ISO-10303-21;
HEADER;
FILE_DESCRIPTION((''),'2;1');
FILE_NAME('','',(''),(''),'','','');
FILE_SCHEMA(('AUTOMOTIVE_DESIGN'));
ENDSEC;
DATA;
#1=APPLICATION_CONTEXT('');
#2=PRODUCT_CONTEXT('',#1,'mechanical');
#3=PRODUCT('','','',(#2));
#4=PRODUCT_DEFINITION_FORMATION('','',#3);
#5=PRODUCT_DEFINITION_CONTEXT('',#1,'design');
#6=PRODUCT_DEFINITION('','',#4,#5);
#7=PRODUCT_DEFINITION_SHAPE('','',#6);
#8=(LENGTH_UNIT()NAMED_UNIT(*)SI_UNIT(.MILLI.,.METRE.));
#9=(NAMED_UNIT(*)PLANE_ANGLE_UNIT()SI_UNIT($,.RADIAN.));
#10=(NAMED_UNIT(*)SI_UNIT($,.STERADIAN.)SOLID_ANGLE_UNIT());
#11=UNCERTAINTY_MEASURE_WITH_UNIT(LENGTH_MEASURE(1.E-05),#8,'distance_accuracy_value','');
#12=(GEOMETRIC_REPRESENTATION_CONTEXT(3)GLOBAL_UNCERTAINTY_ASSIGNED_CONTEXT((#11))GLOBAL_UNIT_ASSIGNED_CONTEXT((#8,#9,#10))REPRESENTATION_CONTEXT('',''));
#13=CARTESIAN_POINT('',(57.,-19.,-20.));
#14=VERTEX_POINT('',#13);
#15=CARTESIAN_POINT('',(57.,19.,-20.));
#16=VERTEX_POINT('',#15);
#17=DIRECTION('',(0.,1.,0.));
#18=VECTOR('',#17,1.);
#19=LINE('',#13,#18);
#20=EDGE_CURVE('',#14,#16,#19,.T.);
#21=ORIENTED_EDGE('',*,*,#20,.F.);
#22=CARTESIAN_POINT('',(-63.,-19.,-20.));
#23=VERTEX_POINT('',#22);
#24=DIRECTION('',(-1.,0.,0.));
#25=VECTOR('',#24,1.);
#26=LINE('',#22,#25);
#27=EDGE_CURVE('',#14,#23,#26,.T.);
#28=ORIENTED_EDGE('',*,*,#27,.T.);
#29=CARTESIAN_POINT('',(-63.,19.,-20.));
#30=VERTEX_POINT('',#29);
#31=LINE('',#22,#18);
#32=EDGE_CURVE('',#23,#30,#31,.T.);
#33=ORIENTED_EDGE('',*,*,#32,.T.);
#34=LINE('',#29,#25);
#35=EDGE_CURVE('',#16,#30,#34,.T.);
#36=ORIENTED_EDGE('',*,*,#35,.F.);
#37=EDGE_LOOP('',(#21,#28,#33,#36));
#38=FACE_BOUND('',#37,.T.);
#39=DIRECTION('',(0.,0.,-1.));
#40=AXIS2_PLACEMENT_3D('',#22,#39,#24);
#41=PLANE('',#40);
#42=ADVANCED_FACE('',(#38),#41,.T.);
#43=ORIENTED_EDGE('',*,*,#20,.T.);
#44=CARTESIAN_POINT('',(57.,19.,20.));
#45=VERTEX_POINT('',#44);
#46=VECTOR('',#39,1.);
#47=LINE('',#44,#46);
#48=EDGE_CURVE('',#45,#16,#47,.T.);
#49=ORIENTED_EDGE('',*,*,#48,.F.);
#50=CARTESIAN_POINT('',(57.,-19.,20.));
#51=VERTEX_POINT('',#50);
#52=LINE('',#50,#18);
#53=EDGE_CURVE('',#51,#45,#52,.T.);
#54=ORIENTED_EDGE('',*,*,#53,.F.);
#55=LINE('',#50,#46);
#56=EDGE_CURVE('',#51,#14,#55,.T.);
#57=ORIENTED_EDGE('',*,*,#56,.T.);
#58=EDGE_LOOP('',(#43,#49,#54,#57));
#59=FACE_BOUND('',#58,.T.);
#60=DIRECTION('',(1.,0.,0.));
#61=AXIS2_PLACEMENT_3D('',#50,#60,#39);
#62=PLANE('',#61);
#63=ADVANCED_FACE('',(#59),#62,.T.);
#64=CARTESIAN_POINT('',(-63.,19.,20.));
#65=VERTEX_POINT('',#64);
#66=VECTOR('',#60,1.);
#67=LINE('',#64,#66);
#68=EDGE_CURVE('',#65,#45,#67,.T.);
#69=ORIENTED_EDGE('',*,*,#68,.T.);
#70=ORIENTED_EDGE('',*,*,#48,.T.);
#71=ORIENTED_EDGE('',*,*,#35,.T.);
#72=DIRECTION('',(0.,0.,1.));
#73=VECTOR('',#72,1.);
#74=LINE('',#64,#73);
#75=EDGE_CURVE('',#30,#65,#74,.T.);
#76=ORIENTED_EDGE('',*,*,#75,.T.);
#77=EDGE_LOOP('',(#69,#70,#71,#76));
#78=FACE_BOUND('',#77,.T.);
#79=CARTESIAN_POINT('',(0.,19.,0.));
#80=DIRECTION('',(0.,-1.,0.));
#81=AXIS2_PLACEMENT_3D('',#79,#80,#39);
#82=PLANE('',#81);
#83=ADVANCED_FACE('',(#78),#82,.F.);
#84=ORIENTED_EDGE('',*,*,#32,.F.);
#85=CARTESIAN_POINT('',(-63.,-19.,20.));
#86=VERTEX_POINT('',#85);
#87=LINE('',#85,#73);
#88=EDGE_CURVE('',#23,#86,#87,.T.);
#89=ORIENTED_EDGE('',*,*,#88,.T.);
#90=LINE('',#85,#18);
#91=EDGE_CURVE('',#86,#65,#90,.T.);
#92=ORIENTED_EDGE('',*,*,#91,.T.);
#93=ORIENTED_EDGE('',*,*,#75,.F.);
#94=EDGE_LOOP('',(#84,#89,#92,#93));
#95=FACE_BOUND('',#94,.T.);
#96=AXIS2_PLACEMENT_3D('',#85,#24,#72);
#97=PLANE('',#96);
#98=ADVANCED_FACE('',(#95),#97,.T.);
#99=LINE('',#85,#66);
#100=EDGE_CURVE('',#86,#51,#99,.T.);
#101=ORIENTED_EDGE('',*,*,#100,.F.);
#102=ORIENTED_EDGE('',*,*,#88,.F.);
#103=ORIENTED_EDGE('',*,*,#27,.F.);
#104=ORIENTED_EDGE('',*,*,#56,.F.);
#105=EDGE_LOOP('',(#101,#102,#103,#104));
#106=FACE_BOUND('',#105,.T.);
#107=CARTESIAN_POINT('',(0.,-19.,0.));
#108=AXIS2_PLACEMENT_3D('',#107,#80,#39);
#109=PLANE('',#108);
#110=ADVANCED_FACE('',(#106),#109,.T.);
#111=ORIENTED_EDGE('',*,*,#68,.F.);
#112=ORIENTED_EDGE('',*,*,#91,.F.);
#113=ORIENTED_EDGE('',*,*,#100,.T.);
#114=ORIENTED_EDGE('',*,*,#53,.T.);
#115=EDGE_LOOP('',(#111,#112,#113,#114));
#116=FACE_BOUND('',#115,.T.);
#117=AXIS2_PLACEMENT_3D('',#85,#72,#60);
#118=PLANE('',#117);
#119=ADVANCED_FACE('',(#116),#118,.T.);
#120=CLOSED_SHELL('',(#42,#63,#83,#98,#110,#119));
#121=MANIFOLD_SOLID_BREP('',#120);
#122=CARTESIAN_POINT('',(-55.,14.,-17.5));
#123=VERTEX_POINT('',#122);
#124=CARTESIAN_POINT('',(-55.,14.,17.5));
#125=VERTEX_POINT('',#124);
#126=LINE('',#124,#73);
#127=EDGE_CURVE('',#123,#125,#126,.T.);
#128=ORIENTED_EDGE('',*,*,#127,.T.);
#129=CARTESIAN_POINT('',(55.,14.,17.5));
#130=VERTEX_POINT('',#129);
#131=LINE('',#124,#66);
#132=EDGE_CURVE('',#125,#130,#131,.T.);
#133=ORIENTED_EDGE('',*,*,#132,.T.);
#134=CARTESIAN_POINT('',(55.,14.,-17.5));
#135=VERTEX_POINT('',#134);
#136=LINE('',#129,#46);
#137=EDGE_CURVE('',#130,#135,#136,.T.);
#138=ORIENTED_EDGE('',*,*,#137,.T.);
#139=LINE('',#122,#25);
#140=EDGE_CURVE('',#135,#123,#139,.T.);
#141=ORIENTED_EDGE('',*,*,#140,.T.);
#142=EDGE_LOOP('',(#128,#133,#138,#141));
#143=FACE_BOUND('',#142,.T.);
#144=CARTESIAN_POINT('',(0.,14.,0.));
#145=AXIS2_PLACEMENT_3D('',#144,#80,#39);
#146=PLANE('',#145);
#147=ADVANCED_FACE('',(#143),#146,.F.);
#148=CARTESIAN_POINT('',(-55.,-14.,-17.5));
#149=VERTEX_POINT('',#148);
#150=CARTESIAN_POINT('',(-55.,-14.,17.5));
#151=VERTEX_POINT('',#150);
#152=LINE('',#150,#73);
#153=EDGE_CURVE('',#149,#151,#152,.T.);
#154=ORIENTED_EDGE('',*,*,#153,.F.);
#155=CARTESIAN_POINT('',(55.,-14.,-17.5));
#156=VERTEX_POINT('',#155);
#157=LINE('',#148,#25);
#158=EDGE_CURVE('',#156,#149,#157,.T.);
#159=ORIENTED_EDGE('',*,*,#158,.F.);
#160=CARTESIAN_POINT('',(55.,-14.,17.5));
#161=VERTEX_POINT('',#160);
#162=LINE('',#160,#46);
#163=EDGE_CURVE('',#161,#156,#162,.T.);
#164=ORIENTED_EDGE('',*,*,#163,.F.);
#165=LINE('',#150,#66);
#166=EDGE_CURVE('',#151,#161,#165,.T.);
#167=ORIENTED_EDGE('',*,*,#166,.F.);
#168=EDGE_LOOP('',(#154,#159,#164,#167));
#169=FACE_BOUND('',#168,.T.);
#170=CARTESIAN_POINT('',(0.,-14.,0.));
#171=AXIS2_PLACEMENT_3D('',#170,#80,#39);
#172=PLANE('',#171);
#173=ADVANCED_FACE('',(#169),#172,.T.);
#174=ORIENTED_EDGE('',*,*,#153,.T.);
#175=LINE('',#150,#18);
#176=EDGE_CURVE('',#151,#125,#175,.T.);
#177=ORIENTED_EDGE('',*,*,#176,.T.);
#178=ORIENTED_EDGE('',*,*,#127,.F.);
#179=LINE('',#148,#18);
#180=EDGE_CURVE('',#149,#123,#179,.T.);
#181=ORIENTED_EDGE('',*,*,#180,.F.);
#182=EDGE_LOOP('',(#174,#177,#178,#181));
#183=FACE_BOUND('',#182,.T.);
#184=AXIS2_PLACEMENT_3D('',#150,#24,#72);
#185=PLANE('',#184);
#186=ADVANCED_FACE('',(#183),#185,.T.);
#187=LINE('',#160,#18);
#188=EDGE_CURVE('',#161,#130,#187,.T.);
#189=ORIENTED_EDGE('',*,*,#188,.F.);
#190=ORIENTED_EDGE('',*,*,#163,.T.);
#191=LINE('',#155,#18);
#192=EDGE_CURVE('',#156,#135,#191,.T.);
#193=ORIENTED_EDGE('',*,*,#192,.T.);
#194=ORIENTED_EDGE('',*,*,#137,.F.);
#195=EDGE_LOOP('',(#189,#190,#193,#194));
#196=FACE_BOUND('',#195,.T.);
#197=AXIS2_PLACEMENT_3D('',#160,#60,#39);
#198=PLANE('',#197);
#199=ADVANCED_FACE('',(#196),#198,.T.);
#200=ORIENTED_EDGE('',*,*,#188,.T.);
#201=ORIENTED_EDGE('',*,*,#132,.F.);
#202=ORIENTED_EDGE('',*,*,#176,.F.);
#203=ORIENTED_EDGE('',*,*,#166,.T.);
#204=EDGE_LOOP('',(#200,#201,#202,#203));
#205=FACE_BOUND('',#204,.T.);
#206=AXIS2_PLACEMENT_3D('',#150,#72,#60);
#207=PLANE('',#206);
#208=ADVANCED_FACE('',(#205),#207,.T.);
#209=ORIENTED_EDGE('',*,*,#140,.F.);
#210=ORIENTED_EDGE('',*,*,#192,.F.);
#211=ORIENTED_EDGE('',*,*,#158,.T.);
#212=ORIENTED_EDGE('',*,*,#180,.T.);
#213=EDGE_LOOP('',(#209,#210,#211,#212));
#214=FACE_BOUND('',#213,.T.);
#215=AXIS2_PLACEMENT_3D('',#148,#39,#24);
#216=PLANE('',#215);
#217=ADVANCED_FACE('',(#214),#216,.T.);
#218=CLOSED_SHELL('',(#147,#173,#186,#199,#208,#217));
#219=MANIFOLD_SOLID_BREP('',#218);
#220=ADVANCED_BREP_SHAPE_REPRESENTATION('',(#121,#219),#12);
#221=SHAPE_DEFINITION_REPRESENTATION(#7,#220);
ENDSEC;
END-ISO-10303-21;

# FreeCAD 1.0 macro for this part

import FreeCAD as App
import Part
import Sketcher
from FreeCAD import Vector
Q = App.Units.Quantity

doc = App.newDocument("Part")
body = doc.addObject("PartDesign::Body", "Body")

# Sketch on XZ plane
sketch1 = doc.addObject("Sketcher::SketchObject", "Sketch")
body.addObject(sketch1)
sketch1.AttachmentSupport = (doc.XZ_Plane, [""])
sketch1.MapMode = "FlatFace"
sketch1.addGeometry([
    Part.LineSegment(Vector(-55, -18, 0), Vector(-55, 18, 0)),
    Part.LineSegment(Vector(-55, 18, 0), Vector(55, 18, 0)),
    Part.LineSegment(Vector(55, 18, 0), Vector(55, -18, 0)),
    Part.LineSegment(Vector(55, -18, 0), Vector(-55, -18, 0)),
], False)
sketch1.addConstraint([
    Sketcher.Constraint("Coincident", 0, 2, 1, 1),
    Sketcher.Constraint("Coincident", 1, 2, 2, 1),
    Sketcher.Constraint("Coincident", 2, 2, 3, 1),
    Sketcher.Constraint("Coincident", 3, 2, 0, 1),
    Sketcher.Constraint("Vertical", 0),
    Sketcher.Constraint("Horizontal", 1),
    Sketcher.Constraint("Vertical", 2),
    Sketcher.Constraint("Horizontal", 3),
    Sketcher.Constraint("Symmetric", 0, 2, 2, 2, -1, 1),
    Sketcher.Constraint("DistanceX", 1, 1, 1, 2, Q("110 mm")),
    Sketcher.Constraint("DistanceY", 0, 1, 0, 2, Q("35 mm")),
])
pad1 = doc.addObject("PartDesign::Pad", "Pad")
body.addObject(pad1)
pad1.Profile = sketch1
pad1.Type = "TwoLengths"
pad1.Length = 14
pad1.Length2 = 14
pad1.Reversed = True
body2 = doc.addObject("PartDesign::Body", "Body001")

# Sketch on XZ plane
sketch2 = doc.addObject("Sketcher::SketchObject", "Sketch001")
body2.addObject(sketch2)
sketch2.AttachmentSupport = (doc.getObject("XZ_Plane001"), [""])
sketch2.MapMode = "FlatFace"
sketch2.addGeometry([
    Part.LineSegment(Vector(-63, -20, 0), Vector(-63, 20, 0)),
    Part.LineSegment(Vector(-63, 20, 0), Vector(57, 20, 0)),
    Part.LineSegment(Vector(57, 20, 0), Vector(57, -20, 0)),
    Part.LineSegment(Vector(57, -20, 0), Vector(-63, -20, 0)),
], False)
sketch2.addConstraint([
    Sketcher.Constraint("Coincident", 0, 2, 1, 1),
    Sketcher.Constraint("Coincident", 1, 2, 2, 1),
    Sketcher.Constraint("Coincident", 2, 2, 3, 1),
    Sketcher.Constraint("Coincident", 3, 2, 0, 1),
    Sketcher.Constraint("Vertical", 0),
    Sketcher.Constraint("Horizontal", 1),
    Sketcher.Constraint("Vertical", 2),
    Sketcher.Constraint("Horizontal", 3),
    Sketcher.Constraint("DistanceX", 1, 1, 1, 2, Q("120 mm")),
    Sketcher.Constraint("DistanceY", 0, 1, 0, 2, Q("40 mm")),
    Sketcher.Constraint("DistanceX", 0, 2, -1, 1, Q("63 mm")),
    Sketcher.Constraint("DistanceY", -1, 1, 0, 2, Q("20 mm")),
])
pad2 = doc.addObject("PartDesign::Pad", "Pad001")
body2.addObject(pad2)
pad2.Profile = sketch2
pad2.Type = "TwoLengths"
pad2.Length = 19
pad2.Length2 = 19
pad2.Reversed = True

doc.recompute()
